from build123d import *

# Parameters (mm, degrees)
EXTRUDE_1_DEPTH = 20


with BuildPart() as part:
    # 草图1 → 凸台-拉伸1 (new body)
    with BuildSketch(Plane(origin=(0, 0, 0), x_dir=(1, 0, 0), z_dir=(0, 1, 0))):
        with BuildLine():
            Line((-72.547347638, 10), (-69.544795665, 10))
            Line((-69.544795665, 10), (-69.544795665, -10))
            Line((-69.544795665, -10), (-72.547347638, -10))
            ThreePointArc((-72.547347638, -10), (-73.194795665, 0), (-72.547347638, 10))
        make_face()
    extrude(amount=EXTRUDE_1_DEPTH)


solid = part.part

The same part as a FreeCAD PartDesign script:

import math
import FreeCAD as App
import Part
import Sketcher
from FreeCAD import Vector

doc = App.newDocument("Part")
params = doc.addObject("Spreadsheet::Sheet", "Params")
for row, (alias, value) in enumerate([
    ("sketch1_height", "20 mm"),
    ("sketch1_radius", "77.55 mm"),
    ("pad1_length", "20 mm"),
], start=1):
    params.set(f"A{row}", alias)
    params.set(f"B{row}", "=" + value)
    params.setAlias(f"B{row}", alias)

body = doc.addObject("PartDesign::Body", "Body")

# Sketch on XZ plane
sketch1 = body.newObject("Sketcher::SketchObject", "Sketch")
sketch1.AttachmentSupport = (doc.getObject("XZ_Plane"), [""])
sketch1.MapMode = "FlatFace"
sketch1.addGeometry(Part.LineSegment(Vector(-69.544796, -10, 0), Vector(-72.547348, -10, 0)), False)
sketch1.addGeometry(Part.ArcOfCircle(Part.Circle(Vector(4.355204, 0, 0), Vector(0, 0, 1), 77.55), math.radians(172.591133), math.radians(187.408867)), False)
sketch1.addGeometry(Part.LineSegment(Vector(-72.547348, 10, 0), Vector(-69.544796, 10, 0)), False)
sketch1.addGeometry(Part.LineSegment(Vector(-69.544796, 10, 0), Vector(-69.544796, -10, 0)), False)
sketch1.addConstraint(Sketcher.Constraint("Coincident", 0, 2, 1, 2))
sketch1.addConstraint(Sketcher.Constraint("Coincident", 1, 1, 2, 1))
sketch1.addConstraint(Sketcher.Constraint("Coincident", 2, 2, 3, 1))
sketch1.addConstraint(Sketcher.Constraint("Coincident", 3, 2, 0, 1))
sketch1.addConstraint(Sketcher.Constraint("Horizontal", 0))
sketch1.addConstraint(Sketcher.Constraint("Horizontal", 2))
sketch1.addConstraint(Sketcher.Constraint("Vertical", 3))
sketch1.addConstraint(Sketcher.Constraint("Symmetric", 0, 2, 1, 1, -1))
sketch1.addConstraint(Sketcher.Constraint("DistanceY", 3, 2, 3, 1, 20.0))
sketch1.addConstraint(Sketcher.Constraint("Radius", 1, 77.55))
sketch1.addConstraint(Sketcher.Constraint("DistanceX", 2, 2, 1, 3, 73.9))
sketch1.addConstraint(Sketcher.Constraint("DistanceX", -1, 1, 1, 3, 4.355204))
sketch1.setExpression("Constraints[8]", "Params.sketch1_height")
sketch1.setExpression("Constraints[9]", "Params.sketch1_radius")
pad1 = body.newObject("PartDesign::Pad", "Pad")
pad1.Profile = sketch1
pad1.setExpression("Length", "Params.pad1_length")
pad1.Reversed = True

doc.recompute()
